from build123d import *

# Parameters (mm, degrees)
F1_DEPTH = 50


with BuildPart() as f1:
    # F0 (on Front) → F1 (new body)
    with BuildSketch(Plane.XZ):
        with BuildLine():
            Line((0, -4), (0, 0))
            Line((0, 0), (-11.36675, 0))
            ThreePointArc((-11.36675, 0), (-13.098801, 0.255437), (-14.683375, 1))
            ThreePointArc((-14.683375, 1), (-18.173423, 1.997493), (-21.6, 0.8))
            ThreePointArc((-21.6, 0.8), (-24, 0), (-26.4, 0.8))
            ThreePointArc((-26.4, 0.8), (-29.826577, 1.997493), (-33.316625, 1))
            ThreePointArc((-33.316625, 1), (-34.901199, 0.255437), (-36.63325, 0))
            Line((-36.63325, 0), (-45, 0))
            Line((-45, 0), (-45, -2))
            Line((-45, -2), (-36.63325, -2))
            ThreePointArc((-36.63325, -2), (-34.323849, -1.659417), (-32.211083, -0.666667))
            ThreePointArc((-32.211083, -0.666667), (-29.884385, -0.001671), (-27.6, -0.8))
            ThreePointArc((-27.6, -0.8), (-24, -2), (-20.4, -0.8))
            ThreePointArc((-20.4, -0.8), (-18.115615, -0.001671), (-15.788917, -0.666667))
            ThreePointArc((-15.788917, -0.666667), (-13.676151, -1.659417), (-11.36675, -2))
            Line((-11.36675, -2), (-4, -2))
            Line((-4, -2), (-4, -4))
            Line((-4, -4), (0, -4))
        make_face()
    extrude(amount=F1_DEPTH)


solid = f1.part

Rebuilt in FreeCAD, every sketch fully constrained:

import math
import FreeCAD as App
import Part
import Sketcher
from FreeCAD import Vector

doc = App.newDocument("Part")
params = doc.addObject("Spreadsheet::Sheet", "Params")
for row, (alias, value) in enumerate([
    ("sketch1_radius", "6.000001 mm"),
    ("sketch1_radius2", "4 mm"),
    ("sketch1_width", "4 mm"),
    ("pad1_length", "50 mm"),
], start=1):
    params.set(f"A{row}", alias)
    params.set(f"B{row}", "=" + value)
    params.setAlias(f"B{row}", alias)

body = doc.addObject("PartDesign::Body", "Body")

# Sketch on XZ plane
sketch1 = body.newObject("Sketcher::SketchObject", "Sketch")
sketch1.AttachmentSupport = (doc.getObject("XZ_Plane"), [""])
sketch1.MapMode = "FlatFace"
sketch1.addGeometry([
    Part.LineSegment(Vector(0, -4, 0), Vector(0, 0, 0)),  # 0
    Part.LineSegment(Vector(0, 0, 0), Vector(-11.4, 0, 0)),  # 1
    Part.ArcOfCircle(Part.Circle(Vector(-11.4, 6, 0), Vector(0, 0, 1), 6), math.radians(-124), math.radians(-90)),  # 2
    Part.ArcOfCircle(Part.Circle(Vector(-18, -4, 0), Vector(0, 0, 1), 6), math.radians(56), math.radians(127)),  # 3
    Part.ArcOfCircle(Part.Circle(Vector(-24, 4, 0), Vector(0, 0, 1), 4), math.radians(-127), math.radians(-53)),  # 4
    Part.ArcOfCircle(Part.Circle(Vector(-30, -4, 0), Vector(0, 0, 1), 6), math.radians(53), math.radians(124)),  # 5
    Part.ArcOfCircle(Part.Circle(Vector(-36.6, 6, 0), Vector(0, 0, 1), 6), math.radians(-90), math.radians(-56)),  # 6
    Part.LineSegment(Vector(-36.6, 0, 0), Vector(-45, 0, 0)),  # 7
    Part.LineSegment(Vector(-45, 0, 0), Vector(-45, -2, 0)),  # 8
    Part.LineSegment(Vector(-45, -2, 0), Vector(-36.6, -2, 0)),  # 9
    Part.ArcOfCircle(Part.Circle(Vector(-36.6, 6, 0), Vector(0, 0, 1), 8), math.radians(-90), math.radians(-56)),  # 10
    Part.ArcOfCircle(Part.Circle(Vector(-30, -4, 0), Vector(0, 0, 1), 4), math.radians(53), math.radians(124)),  # 11
    Part.ArcOfCircle(Part.Circle(Vector(-24, 4, 0), Vector(0, 0, 1), 6), math.radians(-127), math.radians(-53)),  # 12
    Part.ArcOfCircle(Part.Circle(Vector(-18, -4, 0), Vector(0, 0, 1), 4), math.radians(56), math.radians(127)),  # 13
    Part.ArcOfCircle(Part.Circle(Vector(-11.4, 6, 0), Vector(0, 0, 1), 8), math.radians(-124), math.radians(-90)),  # 14
    Part.LineSegment(Vector(-11.4, -2, 0), Vector(-4, -2, 0)),  # 15
    Part.LineSegment(Vector(-4, -2, 0), Vector(-4, -4, 0)),  # 16
    Part.LineSegment(Vector(-4, -4, 0), Vector(0, -4, 0)),  # 17
], False)
sketch1.addConstraint([
    Sketcher.Constraint("Coincident", 0, 2, 1, 1),
    Sketcher.Constraint("Tangent", 1, 2, 2, 2),
    Sketcher.Constraint("Tangent", 2, 1, 3, 1),
    Sketcher.Constraint("Tangent", 3, 2, 4, 2),
    Sketcher.Constraint("Tangent", 4, 1, 5, 1),
    Sketcher.Constraint("Tangent", 5, 2, 6, 2),
    Sketcher.Constraint("Tangent", 6, 1, 7, 1),
    Sketcher.Constraint("Coincident", 7, 2, 8, 1),
    Sketcher.Constraint("Coincident", 8, 2, 9, 1),
    Sketcher.Constraint("Tangent", 9, 2, 10, 1),
    Sketcher.Constraint("Tangent", 10, 2, 11, 2),
    Sketcher.Constraint("Tangent", 11, 1, 12, 1),
    Sketcher.Constraint("Tangent", 12, 2, 13, 2),
    Sketcher.Constraint("Tangent", 13, 1, 14, 1),
    Sketcher.Constraint("Tangent", 14, 2, 15, 1),
    Sketcher.Constraint("Coincident", 15, 2, 16, 1),
    Sketcher.Constraint("Coincident", 16, 2, 17, 1),
    Sketcher.Constraint("Coincident", 17, 2, 0, 1),
    Sketcher.Constraint("Vertical", 0),
    Sketcher.Constraint("Horizontal", 1),
    Sketcher.Constraint("Horizontal", 7),
    Sketcher.Constraint("Vertical", 8),
    Sketcher.Constraint("Horizontal", 9),
    Sketcher.Constraint("Horizontal", 15),
    Sketcher.Constraint("Vertical", 16),
    Sketcher.Constraint("Horizontal", 17),
    Sketcher.Constraint("Coincident", 0, 2, -1, 1),
    Sketcher.Constraint("Coincident", 11, 3, 5, 3),
    Sketcher.Constraint("Coincident", 12, 3, 4, 3),
    Sketcher.Constraint("Coincident", 13, 3, 3, 3),
    Sketcher.Constraint("Equal", 3, 5),
    Sketcher.Constraint("Equal", 2, 6),
    Sketcher.Constraint("Equal", 4, 11),
    Sketcher.Constraint("Equal", 10, 14),
    Sketcher.Constraint("PointOnObject", 6, 1, -1),
    Sketcher.Constraint("Horizontal", 3, 3, 5, 3),
    Sketcher.Constraint("Horizontal", 10, 3, 14, 3),
    Sketcher.Constraint("Horizontal", 5, 3, 16, 2),
    Sketcher.Constraint("Vertical", 14, 3, 1, 2),
    Sketcher.Constraint("Equal", 17, 0),
    Sketcher.Constraint("Equal", 8, 16),
    Sketcher.Constraint("Radius", 3, 6.000001),
    Sketcher.Constraint("Radius", 4, 4.0),
    Sketcher.Constraint("DistanceX", 17, 1, 17, 2, 4.0),
    Sketcher.Constraint("DistanceX", 3, 3, -1, 1, 18.0),
    Sketcher.Constraint("DistanceX", 4, 3, -1, 1, 24.0),
    Sketcher.Constraint("DistanceY", -1, 1, 2, 1, 1.0),
    Sketcher.Constraint("DistanceX", 7, 2, -1, 1, 45.0),
])
sketch1.setExpression("Constraints[41]", "Params.sketch1_radius")
sketch1.setExpression("Constraints[42]", "Params.sketch1_radius2")
sketch1.setExpression("Constraints[43]", "Params.sketch1_width")
pad1 = body.newObject("PartDesign::Pad", "Pad")
pad1.Profile = sketch1
pad1.setExpression("Length", "Params.pad1_length")

doc.recompute()
